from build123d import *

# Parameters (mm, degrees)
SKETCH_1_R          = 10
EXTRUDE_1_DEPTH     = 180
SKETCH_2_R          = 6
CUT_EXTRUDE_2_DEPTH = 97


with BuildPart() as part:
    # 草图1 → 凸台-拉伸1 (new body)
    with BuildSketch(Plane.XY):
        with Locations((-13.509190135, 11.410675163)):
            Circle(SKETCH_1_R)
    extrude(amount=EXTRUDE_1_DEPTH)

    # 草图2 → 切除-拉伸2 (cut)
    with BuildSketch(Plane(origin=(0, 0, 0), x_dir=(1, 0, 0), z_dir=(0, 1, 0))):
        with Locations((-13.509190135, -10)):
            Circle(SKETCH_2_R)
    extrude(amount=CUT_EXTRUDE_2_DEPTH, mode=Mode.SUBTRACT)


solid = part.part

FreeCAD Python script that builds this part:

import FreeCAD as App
import Part
import Sketcher
from FreeCAD import Vector

doc = App.newDocument("Part")
body = doc.addObject("PartDesign::Body", "Body")

# Sketch on XY plane
sketch1 = doc.addObject("Sketcher::SketchObject", "Sketch")
body.addObject(sketch1)
sketch1.AttachmentSupport = (doc.XY_Plane, [""])
sketch1.MapMode = "FlatFace"
sketch1.addGeometry(Part.Circle(Vector(-14, 11, 0), Vector(0, 0, 1), 10), False)
sketch1.addConstraint([
    Sketcher.Constraint("Diameter", 0, 20.0),
    Sketcher.Constraint("DistanceX", 0, 3, -1, 1, 13.50919),
    Sketcher.Constraint("DistanceY", -1, 1, 0, 3, 11.410675),
])
pad1 = doc.addObject("PartDesign::Pad", "Pad")
body.addObject(pad1)
pad1.Profile = sketch1
pad1.Length = 180

# Sketch on XZ plane
sketch2 = doc.addObject("Sketcher::SketchObject", "Sketch001")
body.addObject(sketch2)
sketch2.AttachmentSupport = (doc.XZ_Plane, [""])
sketch2.MapMode = "FlatFace"
sketch2.addGeometry(Part.Circle(Vector(-14, 10, 0), Vector(0, 0, 1), 6), False)
sketch2.addConstraint([
    Sketcher.Constraint("Diameter", 0, 12.0),
    Sketcher.Constraint("DistanceY", -1, 1, 0, 3, 10.0),
    Sketcher.Constraint("DistanceX", 0, 3, -1, 1, 13.50919),
])
pocket1 = doc.addObject("PartDesign::Pocket", "Pocket")
body.addObject(pocket1)
pocket1.Profile = sketch2
pocket1.Length = 97

doc.recompute()
